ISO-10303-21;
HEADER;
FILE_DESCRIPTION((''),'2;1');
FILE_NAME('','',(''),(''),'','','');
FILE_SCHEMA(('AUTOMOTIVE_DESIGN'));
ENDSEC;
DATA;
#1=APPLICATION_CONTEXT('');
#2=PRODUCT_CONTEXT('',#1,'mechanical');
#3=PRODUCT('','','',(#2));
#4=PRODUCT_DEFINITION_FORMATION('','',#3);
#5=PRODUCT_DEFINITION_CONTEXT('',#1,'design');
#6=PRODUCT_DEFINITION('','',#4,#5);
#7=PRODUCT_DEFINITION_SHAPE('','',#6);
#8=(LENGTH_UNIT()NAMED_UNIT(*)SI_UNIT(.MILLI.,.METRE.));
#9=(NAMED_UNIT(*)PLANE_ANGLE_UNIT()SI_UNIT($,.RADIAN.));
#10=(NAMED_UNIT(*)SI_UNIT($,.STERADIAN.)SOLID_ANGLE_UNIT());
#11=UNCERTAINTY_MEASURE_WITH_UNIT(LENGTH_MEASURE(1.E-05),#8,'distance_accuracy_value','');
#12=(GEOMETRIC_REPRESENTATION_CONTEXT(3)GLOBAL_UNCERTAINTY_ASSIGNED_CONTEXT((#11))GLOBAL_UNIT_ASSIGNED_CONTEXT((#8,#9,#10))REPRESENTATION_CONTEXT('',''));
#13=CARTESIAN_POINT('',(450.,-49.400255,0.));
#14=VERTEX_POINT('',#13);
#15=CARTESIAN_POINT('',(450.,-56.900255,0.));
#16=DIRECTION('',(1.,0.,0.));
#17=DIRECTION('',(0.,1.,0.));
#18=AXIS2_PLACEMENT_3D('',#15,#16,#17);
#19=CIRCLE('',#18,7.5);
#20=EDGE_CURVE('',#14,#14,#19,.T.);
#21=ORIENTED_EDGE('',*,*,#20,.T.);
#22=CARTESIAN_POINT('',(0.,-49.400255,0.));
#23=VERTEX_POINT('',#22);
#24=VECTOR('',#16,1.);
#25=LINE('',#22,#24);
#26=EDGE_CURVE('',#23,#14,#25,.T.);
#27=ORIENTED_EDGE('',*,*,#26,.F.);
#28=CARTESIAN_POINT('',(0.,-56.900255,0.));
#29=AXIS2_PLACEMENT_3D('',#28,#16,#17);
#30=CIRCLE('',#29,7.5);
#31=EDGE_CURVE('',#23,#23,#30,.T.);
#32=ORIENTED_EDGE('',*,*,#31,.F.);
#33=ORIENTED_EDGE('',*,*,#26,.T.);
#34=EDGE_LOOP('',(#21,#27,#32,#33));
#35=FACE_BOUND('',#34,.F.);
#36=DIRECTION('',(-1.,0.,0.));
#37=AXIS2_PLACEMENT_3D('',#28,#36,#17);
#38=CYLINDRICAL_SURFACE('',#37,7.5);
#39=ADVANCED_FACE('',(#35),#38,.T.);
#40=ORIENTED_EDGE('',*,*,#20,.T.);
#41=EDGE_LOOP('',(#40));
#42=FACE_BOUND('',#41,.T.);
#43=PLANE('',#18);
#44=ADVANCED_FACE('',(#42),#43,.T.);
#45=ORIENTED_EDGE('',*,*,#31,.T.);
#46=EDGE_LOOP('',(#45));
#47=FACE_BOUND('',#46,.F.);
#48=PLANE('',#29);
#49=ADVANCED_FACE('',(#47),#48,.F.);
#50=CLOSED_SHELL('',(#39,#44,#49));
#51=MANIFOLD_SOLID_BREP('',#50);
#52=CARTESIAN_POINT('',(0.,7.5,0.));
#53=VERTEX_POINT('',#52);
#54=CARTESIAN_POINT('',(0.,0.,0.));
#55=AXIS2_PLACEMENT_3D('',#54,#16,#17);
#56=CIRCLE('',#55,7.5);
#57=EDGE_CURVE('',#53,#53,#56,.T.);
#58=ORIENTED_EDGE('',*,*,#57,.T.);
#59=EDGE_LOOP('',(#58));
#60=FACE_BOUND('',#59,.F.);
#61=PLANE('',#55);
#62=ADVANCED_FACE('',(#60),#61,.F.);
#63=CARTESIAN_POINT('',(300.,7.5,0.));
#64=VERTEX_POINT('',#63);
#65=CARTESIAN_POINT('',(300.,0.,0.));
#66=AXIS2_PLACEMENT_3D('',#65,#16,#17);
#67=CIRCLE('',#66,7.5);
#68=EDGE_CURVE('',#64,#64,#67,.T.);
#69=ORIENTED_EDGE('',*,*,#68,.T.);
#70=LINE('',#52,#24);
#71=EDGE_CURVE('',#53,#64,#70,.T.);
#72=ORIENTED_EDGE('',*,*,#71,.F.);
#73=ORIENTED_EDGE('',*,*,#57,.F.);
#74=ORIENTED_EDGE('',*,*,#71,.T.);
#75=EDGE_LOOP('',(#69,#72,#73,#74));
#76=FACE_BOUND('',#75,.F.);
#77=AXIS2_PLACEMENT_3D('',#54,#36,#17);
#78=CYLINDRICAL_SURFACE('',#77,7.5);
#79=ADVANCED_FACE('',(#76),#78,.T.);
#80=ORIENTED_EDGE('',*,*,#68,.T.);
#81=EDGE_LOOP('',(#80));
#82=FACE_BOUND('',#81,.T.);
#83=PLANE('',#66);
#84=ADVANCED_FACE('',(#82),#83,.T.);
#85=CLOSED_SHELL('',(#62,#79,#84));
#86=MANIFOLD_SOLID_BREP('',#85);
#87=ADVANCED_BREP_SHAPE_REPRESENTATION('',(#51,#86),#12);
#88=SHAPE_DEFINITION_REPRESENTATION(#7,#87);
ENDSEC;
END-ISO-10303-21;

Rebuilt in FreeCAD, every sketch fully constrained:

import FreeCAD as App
import Part
import Sketcher
from FreeCAD import Vector
Q = App.Units.Quantity

doc = App.newDocument("Part")
body = doc.addObject("PartDesign::Body", "Body")

sketch1 = doc.addObject("Sketcher::SketchObject", "Sketch")
body.addObject(sketch1)
sketch1.AttachmentSupport = (doc.YZ_Plane, [""])
sketch1.MapMode = "FlatFace"
sketch1.addGeometry(Part.Circle(Vector(0, 0, 0), Vector(0, 0, 1), 8), False)
sketch1.addConstraint([
    Sketcher.Constraint("Coincident", 0, 3, -1, 1),
    Sketcher.Constraint("Diameter", 0, Q("15 mm")),
])
pad1 = doc.addObject("PartDesign::Pad", "Pad")
body.addObject(pad1)
pad1.Profile = sketch1
pad1.Length = 300
body2 = doc.addObject("PartDesign::Body", "Body001")

sketch2 = doc.addObject("Sketcher::SketchObject", "Sketch001")
body2.addObject(sketch2)
sketch2.AttachmentSupport = (doc.getObject("YZ_Plane001"), [""])
sketch2.MapMode = "FlatFace"
sketch2.addGeometry(Part.Circle(Vector(-57, 0, 0), Vector(0, 0, 1), 8), False)
sketch2.addConstraint([
    Sketcher.Constraint("PointOnObject", 0, 3, -1),
    Sketcher.Constraint("Diameter", 0, Q("15 mm")),
    Sketcher.Constraint("DistanceX", 0, 3, -1, 1, Q("56.900255 mm")),
])
pad2 = doc.addObject("PartDesign::Pad", "Pad001")
body2.addObject(pad2)
pad2.Profile = sketch2
pad2.Length = 450

doc.recompute()
